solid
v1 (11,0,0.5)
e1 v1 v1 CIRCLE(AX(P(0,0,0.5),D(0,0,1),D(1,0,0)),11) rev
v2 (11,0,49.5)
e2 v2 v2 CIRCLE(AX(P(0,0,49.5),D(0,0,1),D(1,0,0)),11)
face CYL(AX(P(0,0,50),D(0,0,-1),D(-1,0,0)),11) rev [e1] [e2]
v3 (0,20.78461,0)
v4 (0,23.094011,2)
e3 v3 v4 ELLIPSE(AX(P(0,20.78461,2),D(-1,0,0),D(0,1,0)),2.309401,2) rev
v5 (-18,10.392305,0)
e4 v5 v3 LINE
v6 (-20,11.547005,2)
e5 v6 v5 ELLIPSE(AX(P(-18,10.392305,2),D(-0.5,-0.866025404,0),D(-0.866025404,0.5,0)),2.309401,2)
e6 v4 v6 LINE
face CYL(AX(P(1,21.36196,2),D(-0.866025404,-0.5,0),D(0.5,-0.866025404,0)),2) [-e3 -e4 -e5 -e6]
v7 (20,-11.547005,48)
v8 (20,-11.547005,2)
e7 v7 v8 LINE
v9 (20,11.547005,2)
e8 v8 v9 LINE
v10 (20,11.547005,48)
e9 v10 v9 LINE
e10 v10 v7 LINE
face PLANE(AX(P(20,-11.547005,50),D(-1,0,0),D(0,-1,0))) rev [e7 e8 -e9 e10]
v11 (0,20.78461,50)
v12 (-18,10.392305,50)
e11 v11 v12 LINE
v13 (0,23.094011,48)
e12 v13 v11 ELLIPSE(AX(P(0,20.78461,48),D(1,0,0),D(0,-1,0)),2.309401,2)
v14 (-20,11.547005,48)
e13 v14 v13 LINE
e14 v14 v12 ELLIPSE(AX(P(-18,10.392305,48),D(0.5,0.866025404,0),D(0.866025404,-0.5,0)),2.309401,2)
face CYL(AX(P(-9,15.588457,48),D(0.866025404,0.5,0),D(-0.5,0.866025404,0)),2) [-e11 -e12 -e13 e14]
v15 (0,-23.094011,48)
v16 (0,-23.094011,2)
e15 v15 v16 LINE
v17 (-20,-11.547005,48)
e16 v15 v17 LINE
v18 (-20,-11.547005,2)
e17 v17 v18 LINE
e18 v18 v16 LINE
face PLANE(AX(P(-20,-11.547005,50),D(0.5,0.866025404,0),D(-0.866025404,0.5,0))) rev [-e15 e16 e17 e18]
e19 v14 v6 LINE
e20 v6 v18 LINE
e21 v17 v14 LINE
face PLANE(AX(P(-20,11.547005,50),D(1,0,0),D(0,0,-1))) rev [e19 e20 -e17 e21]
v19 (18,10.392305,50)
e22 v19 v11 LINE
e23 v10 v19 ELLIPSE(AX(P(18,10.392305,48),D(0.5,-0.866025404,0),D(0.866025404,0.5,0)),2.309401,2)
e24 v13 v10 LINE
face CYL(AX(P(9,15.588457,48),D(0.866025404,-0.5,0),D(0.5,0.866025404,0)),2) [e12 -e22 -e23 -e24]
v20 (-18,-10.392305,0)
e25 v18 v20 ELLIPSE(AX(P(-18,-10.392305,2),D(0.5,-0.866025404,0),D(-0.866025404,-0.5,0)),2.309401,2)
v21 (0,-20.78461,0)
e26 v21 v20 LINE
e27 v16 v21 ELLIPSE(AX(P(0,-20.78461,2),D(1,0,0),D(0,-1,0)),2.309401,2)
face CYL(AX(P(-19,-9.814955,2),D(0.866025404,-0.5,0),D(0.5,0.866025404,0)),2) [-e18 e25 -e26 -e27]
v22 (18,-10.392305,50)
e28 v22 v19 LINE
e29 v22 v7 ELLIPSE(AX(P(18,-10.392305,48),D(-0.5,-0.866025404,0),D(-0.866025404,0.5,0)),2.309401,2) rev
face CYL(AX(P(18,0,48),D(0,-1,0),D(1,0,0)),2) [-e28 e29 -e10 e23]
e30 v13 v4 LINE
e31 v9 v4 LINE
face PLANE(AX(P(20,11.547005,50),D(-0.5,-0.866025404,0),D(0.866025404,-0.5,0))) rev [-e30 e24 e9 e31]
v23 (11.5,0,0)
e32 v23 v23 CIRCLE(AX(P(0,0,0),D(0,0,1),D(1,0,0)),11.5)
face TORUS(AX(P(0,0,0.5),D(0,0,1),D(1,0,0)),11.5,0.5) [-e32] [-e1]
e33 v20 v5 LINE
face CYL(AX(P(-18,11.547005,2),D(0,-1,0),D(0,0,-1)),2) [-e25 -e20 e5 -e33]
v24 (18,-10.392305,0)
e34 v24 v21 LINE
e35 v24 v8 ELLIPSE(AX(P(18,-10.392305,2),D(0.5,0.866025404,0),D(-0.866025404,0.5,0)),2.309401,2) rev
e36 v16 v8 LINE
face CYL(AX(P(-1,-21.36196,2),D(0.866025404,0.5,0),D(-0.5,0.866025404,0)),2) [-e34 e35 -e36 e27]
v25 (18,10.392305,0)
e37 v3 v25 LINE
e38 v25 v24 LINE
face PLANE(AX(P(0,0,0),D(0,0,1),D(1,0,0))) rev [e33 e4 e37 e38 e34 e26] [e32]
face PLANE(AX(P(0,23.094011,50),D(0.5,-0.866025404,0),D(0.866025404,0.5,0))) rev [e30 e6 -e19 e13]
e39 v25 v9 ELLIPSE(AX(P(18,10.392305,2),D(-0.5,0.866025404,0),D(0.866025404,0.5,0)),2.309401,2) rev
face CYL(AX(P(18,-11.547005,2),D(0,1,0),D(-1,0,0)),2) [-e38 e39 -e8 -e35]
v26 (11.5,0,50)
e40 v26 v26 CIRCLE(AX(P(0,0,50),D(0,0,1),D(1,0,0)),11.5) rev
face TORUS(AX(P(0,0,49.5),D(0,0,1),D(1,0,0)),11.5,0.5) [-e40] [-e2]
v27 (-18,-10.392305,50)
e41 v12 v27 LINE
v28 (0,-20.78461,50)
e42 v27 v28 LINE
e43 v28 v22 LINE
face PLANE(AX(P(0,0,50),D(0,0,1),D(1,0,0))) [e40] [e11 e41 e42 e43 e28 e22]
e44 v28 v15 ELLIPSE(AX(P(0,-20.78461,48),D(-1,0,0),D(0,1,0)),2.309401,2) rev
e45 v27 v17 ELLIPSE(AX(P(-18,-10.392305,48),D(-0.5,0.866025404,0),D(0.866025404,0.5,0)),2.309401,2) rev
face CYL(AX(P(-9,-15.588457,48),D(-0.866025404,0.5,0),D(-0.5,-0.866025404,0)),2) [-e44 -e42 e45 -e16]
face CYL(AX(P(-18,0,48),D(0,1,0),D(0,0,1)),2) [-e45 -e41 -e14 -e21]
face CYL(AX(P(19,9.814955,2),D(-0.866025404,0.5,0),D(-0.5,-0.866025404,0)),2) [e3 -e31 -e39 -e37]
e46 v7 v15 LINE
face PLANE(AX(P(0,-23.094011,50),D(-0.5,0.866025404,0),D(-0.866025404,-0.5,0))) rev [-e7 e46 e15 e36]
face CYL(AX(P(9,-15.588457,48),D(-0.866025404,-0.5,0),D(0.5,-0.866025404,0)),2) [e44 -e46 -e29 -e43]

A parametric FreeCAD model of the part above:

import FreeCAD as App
import Part
import Sketcher
from FreeCAD import Vector
Q = App.Units.Quantity


def edges_at(feature, points):
    """Names of the edges that pass closest to the given points."""
    edges = feature.Shape.Edges
    near = lambda p: min(range(len(edges)), key=lambda i: edges[i].distToShape(Part.Vertex(*p))[0])
    return sorted({f"Edge{near(p) + 1}" for p in points})


def add_polygon(sketch, points):
    """Adds a closed chain of lines whose ends are joined by coincident constraints."""
    first, n = sketch.GeometryCount, len(points)
    for a, b in zip(points, points[1:] + points[:1]):
        sketch.addGeometry(Part.LineSegment(App.Vector(*a, 0), App.Vector(*b, 0)), False)
    for i in range(n):
        sketch.addConstraint(Sketcher.Constraint("Coincident", first + i, 2, first + (i + 1) % n, 1))

doc = App.newDocument("Part")
params = doc.addObject("Spreadsheet::Sheet", "Params")
for row, (alias, value) in enumerate([
    ("sketch1_diameter", "22 mm"),
    ("pad1_length", "50 mm"),
    ("fillet_radius", "2 mm"),
    ("fillet2_radius", "0.5 mm"),
], start=1):
    params.set(f"A{row}", alias)
    params.set(f"B{row}", "=" + value)
    params.setAlias(f"B{row}", alias)

body = doc.addObject("PartDesign::Body", "Body")

# Sketch on XY plane
sketch1 = body.newObject("Sketcher::SketchObject", "Sketch")
sketch1.AttachmentSupport = (doc.getObject("XY_Plane"), [""])
sketch1.MapMode = "FlatFace"
add_polygon(sketch1, [(0, -23.094011), (20, -11.547005), (20, 11.547005), (0, 23.094011), (-20, 11.547005), (-20, -11.547005)])  # lines 0-5
sketch1.addGeometry(Part.Circle(Vector(0, 0, 0), Vector(0, 0, 1), 11), False)  # 6
sketch1.addConstraint(Sketcher.Constraint("Vertical", 1))
sketch1.addConstraint(Sketcher.Constraint("Vertical", 4))
sketch1.addConstraint(Sketcher.Constraint("Coincident", 6, 3, -1, 1))
sketch1.addConstraint(Sketcher.Constraint("Symmetric", 0, 2, 3, 2, -1, 1))
sketch1.addConstraint(Sketcher.Constraint("Symmetric", 2, 2, 5, 2, -1, 1))
sketch1.addConstraint(Sketcher.Constraint("PointOnObject", 2, 2, -2))
sketch1.addConstraint(Sketcher.Constraint("Parallel", 2, 5))
sketch1.addConstraint(Sketcher.Constraint("Horizontal", 1, 2, 3, 2))
sketch1.addConstraint(Sketcher.Constraint("Diameter", 6, 22.0))
sketch1.addConstraint(Sketcher.Constraint("Angle", 0, Q("30 deg")))
sketch1.addConstraint(Sketcher.Constraint("DistanceX", -1, 1, 0, 2, 20.0))
sketch1.addConstraint(Sketcher.Constraint("DistanceY", 1, 1, 1, 2, 23.094011))
sketch1.setExpression("Constraints[14]", "Params.sketch1_diameter")
pad1 = body.newObject("PartDesign::Pad", "Pad")
pad1.Profile = sketch1
pad1.setExpression("Length", "Params.pad1_length")
doc.recompute()

fillet = body.newObject("PartDesign::Fillet", "Fillet")
fillet.Base = (pad1, edges_at(pad1, [
    (20, 0, 50),
    (10, 17.321, 50),
    (-10, 17.321, 50),
    (-20, 0, 50),
    (-10, -17.321, 50),
    (-20, 0, 0),
    (-10, 17.321, 0),
    (10, 17.321, 0),
    (10, -17.321, 50),
    (20, 0, 0),
    (10, -17.321, 0),
    (-10, -17.321, 0),
]))
fillet.setExpression("Radius", "Params.fillet_radius")
doc.recompute()

fillet2 = body.newObject("PartDesign::Fillet", "Fillet001")
fillet2.Base = (fillet, edges_at(fillet, [(-11, 0, 0), (-11, 0, 50)]))
fillet2.setExpression("Radius", "Params.fillet2_radius")

doc.recompute()
